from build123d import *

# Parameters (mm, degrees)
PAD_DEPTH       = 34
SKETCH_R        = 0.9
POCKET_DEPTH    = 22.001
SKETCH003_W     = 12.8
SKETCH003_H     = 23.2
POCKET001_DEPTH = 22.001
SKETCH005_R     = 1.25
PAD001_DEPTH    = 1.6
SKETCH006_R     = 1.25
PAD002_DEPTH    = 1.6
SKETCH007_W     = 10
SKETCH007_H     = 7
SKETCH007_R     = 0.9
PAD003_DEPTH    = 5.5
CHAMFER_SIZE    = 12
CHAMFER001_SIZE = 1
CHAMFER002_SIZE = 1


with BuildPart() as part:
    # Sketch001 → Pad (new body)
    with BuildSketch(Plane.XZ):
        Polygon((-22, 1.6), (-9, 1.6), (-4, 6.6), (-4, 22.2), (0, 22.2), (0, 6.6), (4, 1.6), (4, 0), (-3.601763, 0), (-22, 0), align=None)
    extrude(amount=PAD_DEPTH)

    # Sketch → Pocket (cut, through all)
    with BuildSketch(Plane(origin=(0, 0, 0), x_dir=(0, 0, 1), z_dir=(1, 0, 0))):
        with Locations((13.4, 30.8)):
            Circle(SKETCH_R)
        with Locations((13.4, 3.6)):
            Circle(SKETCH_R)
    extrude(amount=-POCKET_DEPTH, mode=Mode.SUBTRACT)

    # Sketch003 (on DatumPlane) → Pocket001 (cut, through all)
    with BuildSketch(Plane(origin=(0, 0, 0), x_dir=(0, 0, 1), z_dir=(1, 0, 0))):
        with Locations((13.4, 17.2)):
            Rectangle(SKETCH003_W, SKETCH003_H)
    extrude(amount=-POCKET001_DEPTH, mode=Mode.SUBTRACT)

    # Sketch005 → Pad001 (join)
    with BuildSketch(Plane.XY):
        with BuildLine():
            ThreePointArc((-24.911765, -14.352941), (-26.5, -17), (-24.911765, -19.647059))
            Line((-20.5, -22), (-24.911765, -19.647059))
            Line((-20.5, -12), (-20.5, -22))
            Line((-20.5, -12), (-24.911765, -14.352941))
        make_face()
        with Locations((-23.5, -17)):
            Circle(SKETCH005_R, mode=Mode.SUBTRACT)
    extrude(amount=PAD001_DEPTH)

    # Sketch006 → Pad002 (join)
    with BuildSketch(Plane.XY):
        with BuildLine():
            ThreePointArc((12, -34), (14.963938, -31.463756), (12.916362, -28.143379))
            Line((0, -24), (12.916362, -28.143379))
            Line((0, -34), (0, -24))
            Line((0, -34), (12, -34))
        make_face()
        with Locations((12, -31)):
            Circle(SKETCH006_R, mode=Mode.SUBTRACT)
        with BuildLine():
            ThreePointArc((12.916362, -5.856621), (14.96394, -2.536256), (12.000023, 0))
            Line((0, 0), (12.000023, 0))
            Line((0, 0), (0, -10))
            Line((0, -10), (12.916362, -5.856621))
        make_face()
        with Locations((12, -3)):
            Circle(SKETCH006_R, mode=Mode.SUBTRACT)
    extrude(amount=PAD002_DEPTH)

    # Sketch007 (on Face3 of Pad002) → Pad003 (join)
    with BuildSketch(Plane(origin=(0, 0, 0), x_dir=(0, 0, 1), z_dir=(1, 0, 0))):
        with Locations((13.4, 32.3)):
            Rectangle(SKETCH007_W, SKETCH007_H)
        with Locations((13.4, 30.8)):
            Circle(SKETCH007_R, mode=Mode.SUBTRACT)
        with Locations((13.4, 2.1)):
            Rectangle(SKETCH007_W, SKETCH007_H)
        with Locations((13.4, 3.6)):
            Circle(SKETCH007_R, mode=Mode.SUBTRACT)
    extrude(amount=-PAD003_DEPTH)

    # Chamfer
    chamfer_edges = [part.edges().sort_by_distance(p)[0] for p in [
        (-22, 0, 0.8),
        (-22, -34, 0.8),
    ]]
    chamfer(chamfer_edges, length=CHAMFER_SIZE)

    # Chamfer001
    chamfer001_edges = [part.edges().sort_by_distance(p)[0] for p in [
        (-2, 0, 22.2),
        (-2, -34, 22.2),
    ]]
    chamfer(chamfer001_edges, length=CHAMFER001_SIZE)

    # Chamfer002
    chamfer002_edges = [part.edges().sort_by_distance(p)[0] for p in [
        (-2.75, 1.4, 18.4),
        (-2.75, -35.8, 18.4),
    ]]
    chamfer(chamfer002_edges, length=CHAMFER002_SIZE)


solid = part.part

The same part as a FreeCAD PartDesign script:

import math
import FreeCAD as App
import Part
import Sketcher

V = App.Vector
Q = App.Units.Quantity


def edges_at(feature, points):
    """Names of the edges that pass closest to the given points."""
    edges = feature.Shape.Edges
    near = lambda p: min(range(len(edges)), key=lambda i: edges[i].distToShape(Part.Vertex(*p))[0])
    return sorted({f"Edge{near(p) + 1}" for p in points})


def add_polygon(sketch, points):
    """Adds a closed chain of lines whose ends are joined by coincident constraints."""
    first, n = sketch.GeometryCount, len(points)
    for a, b in zip(points, points[1:] + points[:1]):
        sketch.addGeometry(Part.LineSegment(App.Vector(*a, 0), App.Vector(*b, 0)), False)
    for i in range(n):
        sketch.addConstraint(Sketcher.Constraint("Coincident", first + i, 2, first + (i + 1) % n, 1))

doc = App.newDocument("Part")
body = doc.addObject("PartDesign::Body", "Body")

# Sketch on XZ plane
sketch1 = body.newObject("Sketcher::SketchObject", "Sketch")
sketch1.AttachmentSupport = (doc.getObject("XZ_Plane"), [""])
sketch1.MapMode = "FlatFace"
add_polygon(sketch1, [(-9, 1.6), (-22, 1.6), (-22, 0), (4, 0), (4, 1.6), (0, 6.6), (0, 22.2), (-4, 22.2), (-4, 6.6)])  # lines 0-8
sketch1.addConstraint(Sketcher.Constraint("Horizontal", 0))
sketch1.addConstraint(Sketcher.Constraint("Vertical", 1))
sketch1.addConstraint(Sketcher.Constraint("Horizontal", 2))
sketch1.addConstraint(Sketcher.Constraint("Vertical", 3))
sketch1.addConstraint(Sketcher.Constraint("Vertical", 5))
sketch1.addConstraint(Sketcher.Constraint("Horizontal", 6))
sketch1.addConstraint(Sketcher.Constraint("Vertical", 7))
sketch1.addConstraint(Sketcher.Constraint("PointOnObject", 1, 2, -1))
sketch1.addConstraint(Sketcher.Constraint("PointOnObject", 4, 2, -2))
sketch1.addConstraint(Sketcher.Constraint("Horizontal", 0, 2, 3, 2))
sketch1.addConstraint(Sketcher.Constraint("Horizontal", 4, 2, 7, 2))
sketch1.addConstraint(Sketcher.Constraint("DistanceX", 0, 2, 0, 1, 13.0))
sketch1.addConstraint(Sketcher.Constraint("DistanceX", 2, 1, 2, 2, 26.0))
sketch1.addConstraint(Sketcher.Constraint("DistanceX", 6, 2, 6, 1, 4.0))
sketch1.addConstraint(Sketcher.Constraint("Angle", 8, Q("-135 deg")))
sketch1.addConstraint(Sketcher.Constraint("DistanceY", 1, 2, 1, 1, 1.6))
sketch1.addConstraint(Sketcher.Constraint("DistanceY", 5, 1, 5, 2, 15.6))
sketch1.addConstraint(Sketcher.Constraint("DistanceX", 0, 2, -1, 1, 22.0))
pad1 = body.newObject("PartDesign::Pad", "Pad")
pad1.Profile = sketch1
pad1.Length = 34

# Sketch on YZ plane
sketch2 = body.newObject("Sketcher::SketchObject", "Sketch001")
sketch2.AttachmentSupport = (doc.getObject("YZ_Plane"), [""])
sketch2.MapMode = "FlatFace"
sketch2.addGeometry(Part.Circle(V(-30.8, 13.4, 0), V(0, 0, 1), 0.9), False)
sketch2.addGeometry(Part.Circle(V(-3.6, 13.4, 0), V(0, 0, 1), 0.9), False)
sketch2.addConstraint(Sketcher.Constraint("Equal", 0, 1))
sketch2.addConstraint(Sketcher.Constraint("Horizontal", 0, 3, 1, 3))
sketch2.addConstraint(Sketcher.Constraint("Diameter", 0, 1.8))
sketch2.addConstraint(Sketcher.Constraint("DistanceX", 0, 3, -1, 1, 30.8))
sketch2.addConstraint(Sketcher.Constraint("DistanceY", -1, 1, 0, 3, 13.4))
sketch2.addConstraint(Sketcher.Constraint("DistanceX", 1, 3, -1, 1, 3.6))
pocket1 = body.newObject("PartDesign::Pocket", "Pocket")
pocket1.Profile = sketch2
pocket1.Type = "ThroughAll"

# Sketch on YZ plane
sketch3 = body.newObject("Sketcher::SketchObject", "Sketch002")
sketch3.AttachmentSupport = (doc.getObject("YZ_Plane"), [""])
sketch3.MapMode = "FlatFace"
add_polygon(sketch3, [(-29, 7), (-6, 7), (-6, 20), (-29, 20)])  # lines 0-3
sketch3.addConstraint(Sketcher.Constraint("Horizontal", 0))
sketch3.addConstraint(Sketcher.Constraint("Vertical", 1))
sketch3.addConstraint(Sketcher.Constraint("Horizontal", 2))
sketch3.addConstraint(Sketcher.Constraint("Vertical", 3))
sketch3.addConstraint(Sketcher.Constraint("DistanceX", 0, 1, 0, 2, 23.2))
sketch3.addConstraint(Sketcher.Constraint("DistanceY", 1, 1, 1, 2, 12.8))
sketch3.addConstraint(Sketcher.Constraint("DistanceY", -1, 1, 0, 2, 7.0))
sketch3.addConstraint(Sketcher.Constraint("DistanceX", 0, 2, -1, 1, 5.6))
pocket2 = body.newObject("PartDesign::Pocket", "Pocket001")
pocket2.Profile = sketch3
pocket2.Type = "ThroughAll"

# Sketch on XY plane
sketch4 = body.newObject("Sketcher::SketchObject", "Sketch003")
sketch4.AttachmentSupport = (doc.getObject("XY_Plane"), [""])
sketch4.MapMode = "FlatFace"
sketch4.addGeometry(Part.ArcOfCircle(Part.Circle(V(-23.5, -17, 0), V(0, 0, 1), 3), math.radians(118), math.radians(242)), False)
sketch4.addGeometry(Part.LineSegment(V(-24.9, -19.6, 0), V(-20.5, -22, 0)), False)
sketch4.addGeometry(Part.LineSegment(V(-20.5, -22, 0), V(-20.5, -12, 0)), False)
sketch4.addGeometry(Part.LineSegment(V(-20.5, -12, 0), V(-24.9, -14.4, 0)), False)
sketch4.addGeometry(Part.Circle(V(-23.5, -17, 0), V(0, 0, 1), 1.2), False)
sketch4.addConstraint(Sketcher.Constraint("Tangent", 0, 2, 1, 1))
sketch4.addConstraint(Sketcher.Constraint("Coincident", 1, 2, 2, 1))
sketch4.addConstraint(Sketcher.Constraint("Coincident", 2, 2, 3, 1))
sketch4.addConstraint(Sketcher.Constraint("Tangent", 3, 2, 0, 1))
sketch4.addConstraint(Sketcher.Constraint("Vertical", 2))
sketch4.addConstraint(Sketcher.Constraint("Coincident", 4, 3, 0, 3))
sketch4.addConstraint(Sketcher.Constraint("Vertical", 0, 2, 3, 2))
sketch4.addConstraint(Sketcher.Constraint("Radius", 0, 3.000001))
sketch4.addConstraint(Sketcher.Constraint("Diameter", 4, 2.5))
sketch4.addConstraint(Sketcher.Constraint("DistanceY", 2, 1, 2, 2, 10.0))
sketch4.addConstraint(Sketcher.Constraint("Distance", 1, 5.0))
sketch4.addConstraint(Sketcher.Constraint("DistanceY", 0, 3, -1, 1, 17.0))
sketch4.addConstraint(Sketcher.Constraint("DistanceX", 0, 3, -1, 1, 23.499999))
pad2 = body.newObject("PartDesign::Pad", "Pad001")
pad2.Profile = sketch4
pad2.Length = 1.6

# Sketch on XY plane
sketch5 = body.newObject("Sketcher::SketchObject", "Sketch004")
sketch5.AttachmentSupport = (doc.getObject("XY_Plane"), [""])
sketch5.MapMode = "FlatFace"
sketch5.addGeometry(Part.ArcOfCircle(Part.Circle(V(12, -31, 0), V(0, 0, 1), 3), math.radians(-90), math.radians(72)), False)
sketch5.addGeometry(Part.LineSegment(V(12.9, -28.1, 0), V(0, -24, 0)), False)
sketch5.addGeometry(Part.LineSegment(V(0, -24, 0), V(0, -34, 0)), False)
sketch5.addGeometry(Part.LineSegment(V(0, -34, 0), V(12, -34, 0)), False)
sketch5.addGeometry(Part.Circle(V(12, -31, 0), V(0, 0, 1), 1.2), False)
sketch5.addGeometry(Part.ArcOfCircle(Part.Circle(V(12, -3, 0), V(0, 0, 1), 3), math.radians(-72), math.radians(90)), False)
sketch5.addGeometry(Part.LineSegment(V(12, 0, 0), V(0, 0, 0)), False)
sketch5.addGeometry(Part.LineSegment(V(0, 0, 0), V(0, -10, 0)), False)
sketch5.addGeometry(Part.LineSegment(V(0, -10, 0), V(12.9, -5.9, 0)), False)
sketch5.addGeometry(Part.Circle(V(12, -3, 0), V(0, 0, 1), 1.2), False)
sketch5.addConstraint(Sketcher.Constraint("Tangent", 0, 2, 1, 1))
sketch5.addConstraint(Sketcher.Constraint("Coincident", 1, 2, 2, 1))
sketch5.addConstraint(Sketcher.Constraint("Coincident", 2, 2, 3, 1))
sketch5.addConstraint(Sketcher.Constraint("Tangent", 3, 2, 0, 1))
sketch5.addConstraint(Sketcher.Constraint("Coincident", 5, 2, 6, 1))
sketch5.addConstraint(Sketcher.Constraint("Coincident", 6, 2, 7, 1))
sketch5.addConstraint(Sketcher.Constraint("Coincident", 7, 2, 8, 1))
sketch5.addConstraint(Sketcher.Constraint("Tangent", 8, 2, 5, 1))
sketch5.addConstraint(Sketcher.Constraint("Vertical", 2))
sketch5.addConstraint(Sketcher.Constraint("Horizontal", 3))
sketch5.addConstraint(Sketcher.Constraint("Horizontal", 6))
sketch5.addConstraint(Sketcher.Constraint("Vertical", 7))
sketch5.addConstraint(Sketcher.Constraint("Coincident", 6, 2, -1, 1))
sketch5.addConstraint(Sketcher.Constraint("Coincident", 4, 3, 0, 3))
sketch5.addConstraint(Sketcher.Constraint("Coincident", 9, 3, 5, 3))
sketch5.addConstraint(Sketcher.Constraint("Equal", 0, 5))
sketch5.addConstraint(Sketcher.Constraint("Equal", 4, 9))
sketch5.addConstraint(Sketcher.Constraint("PointOnObject", 1, 2, -2))
sketch5.addConstraint(Sketcher.Constraint("Vertical", 4, 3, 5, 3))
sketch5.addConstraint(Sketcher.Constraint("Vertical", 0, 2, 8, 2))
sketch5.addConstraint(Sketcher.Constraint("Radius", 0, 3.0))
sketch5.addConstraint(Sketcher.Constraint("Diameter", 4, 2.5))
sketch5.addConstraint(Sketcher.Constraint("DistanceX", 3, 1, 3, 2, 12.0))
sketch5.addConstraint(Sketcher.Constraint("DistanceY", 2, 2, 2, 1, 10.0))
sketch5.addConstraint(Sketcher.Constraint("DistanceY", 0, 3, -1, 1, 31.0))
sketch5.addConstraint(Sketcher.Constraint("DistanceX", 6, 2, 6, 1, 12.000023))
pad3 = body.newObject("PartDesign::Pad", "Pad002")
pad3.Profile = sketch5
pad3.Length = 1.6

# Sketch on YZ plane
sketch6 = body.newObject("Sketcher::SketchObject", "Sketch005")
sketch6.AttachmentSupport = (doc.getObject("YZ_Plane"), [""])
sketch6.MapMode = "FlatFace"
add_polygon(sketch6, [(-35.8, 8.4), (-28.8, 8.4), (-28.8, 18.4), (-35.8, 18.4)])  # lines 0-3
sketch6.addGeometry(Part.Circle(V(-30.8, 13.4, 0), V(0, 0, 1), 0.9), False)  # 4
add_polygon(sketch6, [(-5.6, 8.4), (1.4, 8.4), (1.4, 18.4), (-5.6, 18.4)])  # lines 5-8
sketch6.addGeometry(Part.Circle(V(-3.6, 13.4, 0), V(0, 0, 1), 0.9), False)  # 9
sketch6.addConstraint(Sketcher.Constraint("Horizontal", 0))
sketch6.addConstraint(Sketcher.Constraint("Vertical", 1))
sketch6.addConstraint(Sketcher.Constraint("Horizontal", 2))
sketch6.addConstraint(Sketcher.Constraint("Vertical", 3))
sketch6.addConstraint(Sketcher.Constraint("Horizontal", 5))
sketch6.addConstraint(Sketcher.Constraint("Vertical", 6))
sketch6.addConstraint(Sketcher.Constraint("Horizontal", 7))
sketch6.addConstraint(Sketcher.Constraint("Vertical", 8))
sketch6.addConstraint(Sketcher.Constraint("Equal", 4, 9))
sketch6.addConstraint(Sketcher.Constraint("Horizontal", 4, 3, 9, 3))
sketch6.addConstraint(Sketcher.Constraint("Horizontal", 3, 2, 5, 2))
sketch6.addConstraint(Sketcher.Constraint("Horizontal", 2, 2, 6, 2))
sketch6.addConstraint(Sketcher.Constraint("Equal", 2, 5))
sketch6.addConstraint(Sketcher.Constraint("Diameter", 4, 1.8))
sketch6.addConstraint(Sketcher.Constraint("DistanceX", 0, 1, 0, 2, 7.0))
sketch6.addConstraint(Sketcher.Constraint("DistanceY", 1, 1, 1, 2, 10.0))
sketch6.addConstraint(Sketcher.Constraint("DistanceX", 4, 3, 0, 2, 2.0))
sketch6.addConstraint(Sketcher.Constraint("DistanceY", 0, 2, 4, 3, 5.0))
sketch6.addConstraint(Sketcher.Constraint("DistanceX", 9, 3, 5, 2, 5.0))
sketch6.addConstraint(Sketcher.Constraint("DistanceX", 4, 3, -1, 1, 30.8))
sketch6.addConstraint(Sketcher.Constraint("DistanceY", -1, 1, 4, 3, 13.4))
sketch6.addConstraint(Sketcher.Constraint("DistanceX", 9, 3, -1, 1, 3.6))
pad4 = body.newObject("PartDesign::Pad", "Pad003")
pad4.Profile = sketch6
pad4.Length = 5.5
pad4.Reversed = True
doc.recompute()

chamfer = body.newObject("PartDesign::Chamfer", "Chamfer")
chamfer.Base = (pad4, edges_at(pad4, [(-22, 0, 0.8), (-22, -34, 0.8)]))
chamfer.Size = 12
doc.recompute()

chamfer2 = body.newObject("PartDesign::Chamfer", "Chamfer001")
chamfer2.Base = (chamfer, edges_at(chamfer, [(-2, 0, 22.2), (-2, -34, 22.2)]))
chamfer2.Size = 1
doc.recompute()

chamfer3 = body.newObject("PartDesign::Chamfer", "Chamfer002")
chamfer3.Base = (chamfer2, edges_at(chamfer2, [(-2.75, 1.4, 18.4), (-2.75, -35.8, 18.4)]))
chamfer3.Size = 1

doc.recompute()
